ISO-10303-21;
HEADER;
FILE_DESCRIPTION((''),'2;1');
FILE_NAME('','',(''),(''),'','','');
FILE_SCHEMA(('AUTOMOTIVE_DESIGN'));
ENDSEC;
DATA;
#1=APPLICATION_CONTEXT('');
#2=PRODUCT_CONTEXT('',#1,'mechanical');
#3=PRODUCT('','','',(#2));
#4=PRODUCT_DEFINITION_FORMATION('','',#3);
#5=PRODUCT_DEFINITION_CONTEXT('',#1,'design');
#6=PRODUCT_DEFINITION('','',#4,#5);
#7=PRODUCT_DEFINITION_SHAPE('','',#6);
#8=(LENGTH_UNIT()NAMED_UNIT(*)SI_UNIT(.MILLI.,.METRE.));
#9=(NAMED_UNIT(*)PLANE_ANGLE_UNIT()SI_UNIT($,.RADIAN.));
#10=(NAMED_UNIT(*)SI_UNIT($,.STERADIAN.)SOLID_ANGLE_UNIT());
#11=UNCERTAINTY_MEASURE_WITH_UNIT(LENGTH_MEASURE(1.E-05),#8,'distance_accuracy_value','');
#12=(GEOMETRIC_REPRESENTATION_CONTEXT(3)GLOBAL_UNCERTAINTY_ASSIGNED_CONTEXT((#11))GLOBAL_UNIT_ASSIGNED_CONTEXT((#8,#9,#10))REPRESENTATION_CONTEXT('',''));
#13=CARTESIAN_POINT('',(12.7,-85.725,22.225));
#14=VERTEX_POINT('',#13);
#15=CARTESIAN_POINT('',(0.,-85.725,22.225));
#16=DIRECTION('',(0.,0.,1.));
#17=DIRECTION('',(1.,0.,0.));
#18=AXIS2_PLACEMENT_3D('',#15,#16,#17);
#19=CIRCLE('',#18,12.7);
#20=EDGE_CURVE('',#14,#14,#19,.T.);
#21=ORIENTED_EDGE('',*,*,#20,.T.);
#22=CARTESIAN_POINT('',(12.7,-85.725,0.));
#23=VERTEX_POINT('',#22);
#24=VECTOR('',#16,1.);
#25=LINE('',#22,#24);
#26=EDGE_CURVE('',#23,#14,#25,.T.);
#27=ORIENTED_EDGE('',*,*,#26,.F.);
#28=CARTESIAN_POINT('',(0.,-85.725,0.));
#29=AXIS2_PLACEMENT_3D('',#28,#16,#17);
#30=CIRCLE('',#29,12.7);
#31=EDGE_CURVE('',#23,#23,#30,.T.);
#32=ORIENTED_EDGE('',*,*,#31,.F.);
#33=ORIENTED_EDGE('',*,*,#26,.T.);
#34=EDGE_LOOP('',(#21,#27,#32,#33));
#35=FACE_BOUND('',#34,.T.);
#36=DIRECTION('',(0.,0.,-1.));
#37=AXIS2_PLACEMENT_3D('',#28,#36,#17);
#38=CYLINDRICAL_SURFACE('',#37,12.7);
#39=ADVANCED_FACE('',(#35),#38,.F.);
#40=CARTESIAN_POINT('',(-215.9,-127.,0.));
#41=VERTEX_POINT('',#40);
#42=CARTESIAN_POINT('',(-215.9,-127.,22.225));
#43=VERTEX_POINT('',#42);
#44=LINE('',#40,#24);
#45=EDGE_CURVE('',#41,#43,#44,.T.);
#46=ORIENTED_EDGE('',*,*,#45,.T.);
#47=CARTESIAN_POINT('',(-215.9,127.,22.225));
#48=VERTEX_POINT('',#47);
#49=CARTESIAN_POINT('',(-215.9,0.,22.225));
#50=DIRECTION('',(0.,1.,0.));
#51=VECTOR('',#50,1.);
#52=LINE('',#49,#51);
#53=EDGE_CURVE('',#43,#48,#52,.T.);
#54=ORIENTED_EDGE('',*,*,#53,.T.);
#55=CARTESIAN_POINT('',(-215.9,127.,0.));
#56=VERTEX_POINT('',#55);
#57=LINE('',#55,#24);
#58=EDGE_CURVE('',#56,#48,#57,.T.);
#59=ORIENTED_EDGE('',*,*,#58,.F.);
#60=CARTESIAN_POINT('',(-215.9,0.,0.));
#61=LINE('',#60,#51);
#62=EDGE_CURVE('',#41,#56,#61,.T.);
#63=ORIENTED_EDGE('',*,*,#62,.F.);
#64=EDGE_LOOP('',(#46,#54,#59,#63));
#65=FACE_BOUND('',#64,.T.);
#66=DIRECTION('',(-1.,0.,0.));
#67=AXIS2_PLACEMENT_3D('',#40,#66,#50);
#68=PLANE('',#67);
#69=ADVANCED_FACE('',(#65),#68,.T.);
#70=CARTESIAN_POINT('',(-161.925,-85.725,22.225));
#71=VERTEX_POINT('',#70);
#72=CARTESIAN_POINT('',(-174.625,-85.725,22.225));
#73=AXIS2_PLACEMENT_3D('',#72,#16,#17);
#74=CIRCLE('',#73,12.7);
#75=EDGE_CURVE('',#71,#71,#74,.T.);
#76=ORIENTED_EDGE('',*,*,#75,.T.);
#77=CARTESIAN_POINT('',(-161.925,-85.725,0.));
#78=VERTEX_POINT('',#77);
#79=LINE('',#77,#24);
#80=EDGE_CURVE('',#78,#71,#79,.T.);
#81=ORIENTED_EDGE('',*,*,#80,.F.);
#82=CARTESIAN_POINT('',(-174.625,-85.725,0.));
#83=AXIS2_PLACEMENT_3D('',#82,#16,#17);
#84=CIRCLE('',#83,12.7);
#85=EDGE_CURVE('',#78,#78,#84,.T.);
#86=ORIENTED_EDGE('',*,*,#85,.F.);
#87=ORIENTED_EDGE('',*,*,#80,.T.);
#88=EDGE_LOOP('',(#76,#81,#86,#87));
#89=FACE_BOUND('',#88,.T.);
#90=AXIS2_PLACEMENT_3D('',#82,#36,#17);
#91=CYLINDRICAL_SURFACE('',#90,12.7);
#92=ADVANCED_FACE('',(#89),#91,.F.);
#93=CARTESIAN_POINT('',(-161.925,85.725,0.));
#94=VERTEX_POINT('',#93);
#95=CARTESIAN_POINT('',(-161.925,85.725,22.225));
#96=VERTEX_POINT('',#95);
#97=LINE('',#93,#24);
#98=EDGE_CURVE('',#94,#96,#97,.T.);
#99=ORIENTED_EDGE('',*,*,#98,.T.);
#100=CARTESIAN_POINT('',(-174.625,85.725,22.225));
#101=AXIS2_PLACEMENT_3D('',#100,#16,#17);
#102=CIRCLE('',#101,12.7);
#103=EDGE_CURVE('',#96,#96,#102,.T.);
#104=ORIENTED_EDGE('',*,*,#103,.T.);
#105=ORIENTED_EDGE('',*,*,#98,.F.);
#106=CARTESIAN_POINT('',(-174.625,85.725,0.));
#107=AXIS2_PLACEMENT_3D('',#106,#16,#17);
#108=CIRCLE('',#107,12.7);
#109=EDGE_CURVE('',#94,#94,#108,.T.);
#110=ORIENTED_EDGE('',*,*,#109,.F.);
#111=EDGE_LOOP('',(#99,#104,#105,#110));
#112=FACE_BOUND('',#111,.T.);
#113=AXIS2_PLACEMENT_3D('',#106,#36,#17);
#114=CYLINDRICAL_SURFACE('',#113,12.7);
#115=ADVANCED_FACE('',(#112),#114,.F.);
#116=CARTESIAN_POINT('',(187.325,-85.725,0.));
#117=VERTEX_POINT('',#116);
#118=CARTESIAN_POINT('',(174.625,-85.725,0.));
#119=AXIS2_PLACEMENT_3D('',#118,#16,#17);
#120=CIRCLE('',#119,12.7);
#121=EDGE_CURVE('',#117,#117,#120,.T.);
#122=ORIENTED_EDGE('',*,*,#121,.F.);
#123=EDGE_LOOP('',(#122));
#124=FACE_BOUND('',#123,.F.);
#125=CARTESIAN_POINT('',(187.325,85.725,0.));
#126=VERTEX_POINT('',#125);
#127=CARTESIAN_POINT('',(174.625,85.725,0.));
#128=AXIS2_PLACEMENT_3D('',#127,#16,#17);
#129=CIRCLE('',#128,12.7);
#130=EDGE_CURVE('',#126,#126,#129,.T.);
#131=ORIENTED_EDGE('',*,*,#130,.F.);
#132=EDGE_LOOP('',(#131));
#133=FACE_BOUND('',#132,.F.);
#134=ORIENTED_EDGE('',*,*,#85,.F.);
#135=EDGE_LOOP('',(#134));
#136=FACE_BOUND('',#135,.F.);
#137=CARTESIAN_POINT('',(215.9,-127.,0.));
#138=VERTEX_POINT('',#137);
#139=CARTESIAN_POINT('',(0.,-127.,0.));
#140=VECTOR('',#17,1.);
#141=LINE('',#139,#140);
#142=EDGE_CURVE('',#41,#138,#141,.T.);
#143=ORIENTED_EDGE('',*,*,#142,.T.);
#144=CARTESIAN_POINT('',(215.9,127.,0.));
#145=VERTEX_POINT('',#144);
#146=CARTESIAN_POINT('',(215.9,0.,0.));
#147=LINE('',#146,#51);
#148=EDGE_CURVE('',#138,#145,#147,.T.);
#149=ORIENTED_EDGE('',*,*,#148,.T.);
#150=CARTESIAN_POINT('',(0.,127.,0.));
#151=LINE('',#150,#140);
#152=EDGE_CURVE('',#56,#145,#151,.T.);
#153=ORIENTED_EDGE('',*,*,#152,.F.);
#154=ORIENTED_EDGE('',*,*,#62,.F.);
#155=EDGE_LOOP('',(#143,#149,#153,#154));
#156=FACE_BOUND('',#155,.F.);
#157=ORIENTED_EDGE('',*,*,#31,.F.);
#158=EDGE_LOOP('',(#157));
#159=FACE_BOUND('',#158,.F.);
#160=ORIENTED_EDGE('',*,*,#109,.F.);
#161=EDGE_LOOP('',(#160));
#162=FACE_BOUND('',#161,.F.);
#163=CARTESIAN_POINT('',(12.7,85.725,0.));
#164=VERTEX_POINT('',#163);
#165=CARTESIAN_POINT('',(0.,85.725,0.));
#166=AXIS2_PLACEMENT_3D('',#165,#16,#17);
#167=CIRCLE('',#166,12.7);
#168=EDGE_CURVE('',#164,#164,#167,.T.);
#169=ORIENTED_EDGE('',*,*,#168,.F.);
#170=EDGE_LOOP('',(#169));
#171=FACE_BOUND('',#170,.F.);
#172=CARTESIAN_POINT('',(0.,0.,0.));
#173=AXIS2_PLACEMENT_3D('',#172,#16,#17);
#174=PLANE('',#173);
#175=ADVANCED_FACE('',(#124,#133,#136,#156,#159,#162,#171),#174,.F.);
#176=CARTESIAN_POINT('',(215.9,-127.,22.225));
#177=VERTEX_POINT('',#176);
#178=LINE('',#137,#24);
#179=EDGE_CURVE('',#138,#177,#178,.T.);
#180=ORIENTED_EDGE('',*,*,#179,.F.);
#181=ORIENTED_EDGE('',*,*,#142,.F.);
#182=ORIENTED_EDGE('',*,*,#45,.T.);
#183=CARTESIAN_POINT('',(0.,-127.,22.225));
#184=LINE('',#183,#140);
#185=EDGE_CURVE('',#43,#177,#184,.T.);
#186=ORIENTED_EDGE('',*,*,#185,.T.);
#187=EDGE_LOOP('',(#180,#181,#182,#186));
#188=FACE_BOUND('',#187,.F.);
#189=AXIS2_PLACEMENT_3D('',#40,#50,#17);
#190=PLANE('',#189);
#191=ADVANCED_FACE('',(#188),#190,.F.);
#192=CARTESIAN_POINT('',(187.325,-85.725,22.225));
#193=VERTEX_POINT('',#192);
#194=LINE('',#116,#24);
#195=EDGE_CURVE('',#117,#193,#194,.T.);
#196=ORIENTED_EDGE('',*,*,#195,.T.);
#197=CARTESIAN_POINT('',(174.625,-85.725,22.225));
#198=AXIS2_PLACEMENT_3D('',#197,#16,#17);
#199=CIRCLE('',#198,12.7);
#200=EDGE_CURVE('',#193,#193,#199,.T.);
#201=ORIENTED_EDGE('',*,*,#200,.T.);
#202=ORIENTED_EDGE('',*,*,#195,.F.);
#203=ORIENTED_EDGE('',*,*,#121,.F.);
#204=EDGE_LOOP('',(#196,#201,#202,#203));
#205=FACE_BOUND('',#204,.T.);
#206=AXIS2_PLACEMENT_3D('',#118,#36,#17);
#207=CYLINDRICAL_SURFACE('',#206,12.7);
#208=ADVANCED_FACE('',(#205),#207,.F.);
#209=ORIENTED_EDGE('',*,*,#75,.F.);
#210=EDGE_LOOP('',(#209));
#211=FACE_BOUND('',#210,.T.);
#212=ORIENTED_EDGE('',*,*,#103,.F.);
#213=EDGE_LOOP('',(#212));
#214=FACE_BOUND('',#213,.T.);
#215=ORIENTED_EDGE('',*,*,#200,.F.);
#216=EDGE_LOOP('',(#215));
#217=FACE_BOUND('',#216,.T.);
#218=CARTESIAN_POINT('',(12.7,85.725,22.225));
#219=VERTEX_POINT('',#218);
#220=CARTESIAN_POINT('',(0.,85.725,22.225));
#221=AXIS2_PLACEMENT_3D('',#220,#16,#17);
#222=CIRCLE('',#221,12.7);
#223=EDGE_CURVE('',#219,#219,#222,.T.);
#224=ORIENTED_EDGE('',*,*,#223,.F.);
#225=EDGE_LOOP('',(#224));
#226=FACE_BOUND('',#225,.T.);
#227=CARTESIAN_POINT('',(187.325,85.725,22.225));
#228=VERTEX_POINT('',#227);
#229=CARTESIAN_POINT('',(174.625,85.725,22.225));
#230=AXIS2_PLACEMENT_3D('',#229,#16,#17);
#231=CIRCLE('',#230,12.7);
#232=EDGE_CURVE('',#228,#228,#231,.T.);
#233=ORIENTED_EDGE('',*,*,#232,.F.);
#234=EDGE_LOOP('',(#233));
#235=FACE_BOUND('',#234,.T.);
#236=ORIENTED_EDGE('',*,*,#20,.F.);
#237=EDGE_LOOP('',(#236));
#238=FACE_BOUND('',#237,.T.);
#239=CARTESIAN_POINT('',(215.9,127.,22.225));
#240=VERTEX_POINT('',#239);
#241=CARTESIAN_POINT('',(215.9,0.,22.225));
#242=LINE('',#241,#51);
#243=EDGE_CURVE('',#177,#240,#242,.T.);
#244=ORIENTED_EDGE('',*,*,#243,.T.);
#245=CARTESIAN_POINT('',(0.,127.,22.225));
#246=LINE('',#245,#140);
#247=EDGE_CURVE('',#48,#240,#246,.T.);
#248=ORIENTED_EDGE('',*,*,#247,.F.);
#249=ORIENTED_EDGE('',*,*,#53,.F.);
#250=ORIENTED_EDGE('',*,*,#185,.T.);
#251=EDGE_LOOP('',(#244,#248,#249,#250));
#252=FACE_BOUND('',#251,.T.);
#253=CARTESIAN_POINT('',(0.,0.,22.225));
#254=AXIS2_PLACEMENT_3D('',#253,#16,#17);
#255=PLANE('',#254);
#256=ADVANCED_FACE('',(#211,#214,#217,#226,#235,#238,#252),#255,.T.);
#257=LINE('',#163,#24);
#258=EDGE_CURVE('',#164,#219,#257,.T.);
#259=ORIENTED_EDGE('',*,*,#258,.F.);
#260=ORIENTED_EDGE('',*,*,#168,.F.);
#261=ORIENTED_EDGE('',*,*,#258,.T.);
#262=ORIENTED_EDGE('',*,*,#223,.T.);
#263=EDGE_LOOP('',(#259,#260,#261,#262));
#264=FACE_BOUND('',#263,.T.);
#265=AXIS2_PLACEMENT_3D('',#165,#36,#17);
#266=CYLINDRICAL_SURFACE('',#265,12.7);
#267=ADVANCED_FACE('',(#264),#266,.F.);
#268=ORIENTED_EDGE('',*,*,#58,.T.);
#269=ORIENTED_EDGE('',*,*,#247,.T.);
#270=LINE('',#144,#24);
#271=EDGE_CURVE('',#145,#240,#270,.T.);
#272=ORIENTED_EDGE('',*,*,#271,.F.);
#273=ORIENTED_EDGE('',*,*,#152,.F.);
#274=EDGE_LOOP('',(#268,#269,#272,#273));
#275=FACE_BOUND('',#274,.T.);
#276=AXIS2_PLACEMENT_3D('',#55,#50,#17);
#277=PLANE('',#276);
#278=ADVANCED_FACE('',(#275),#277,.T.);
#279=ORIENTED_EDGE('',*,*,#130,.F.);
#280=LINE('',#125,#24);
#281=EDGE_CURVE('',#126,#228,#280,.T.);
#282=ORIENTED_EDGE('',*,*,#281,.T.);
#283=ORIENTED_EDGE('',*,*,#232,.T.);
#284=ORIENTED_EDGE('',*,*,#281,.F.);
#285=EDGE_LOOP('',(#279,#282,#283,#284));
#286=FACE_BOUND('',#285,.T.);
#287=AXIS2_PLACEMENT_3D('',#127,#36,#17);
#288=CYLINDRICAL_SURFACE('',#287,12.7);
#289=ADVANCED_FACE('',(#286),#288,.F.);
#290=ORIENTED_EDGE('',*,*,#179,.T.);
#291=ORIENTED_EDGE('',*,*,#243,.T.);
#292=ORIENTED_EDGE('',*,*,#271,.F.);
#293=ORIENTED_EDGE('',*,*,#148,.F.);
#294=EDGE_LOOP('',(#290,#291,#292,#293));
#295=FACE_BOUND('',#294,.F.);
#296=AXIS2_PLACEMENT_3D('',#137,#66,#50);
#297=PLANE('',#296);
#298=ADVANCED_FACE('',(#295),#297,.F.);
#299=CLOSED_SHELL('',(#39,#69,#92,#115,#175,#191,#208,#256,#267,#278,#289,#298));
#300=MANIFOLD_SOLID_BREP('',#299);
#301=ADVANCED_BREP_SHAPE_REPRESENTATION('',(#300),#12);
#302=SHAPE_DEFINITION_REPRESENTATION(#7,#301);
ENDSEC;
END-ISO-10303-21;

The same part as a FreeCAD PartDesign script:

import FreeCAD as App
import Part
import Sketcher

V = App.Vector
Q = App.Units.Quantity


def add_polygon(sketch, points):
    """Adds a closed chain of lines whose ends are joined by coincident constraints."""
    first, n = sketch.GeometryCount, len(points)
    for a, b in zip(points, points[1:] + points[:1]):
        sketch.addGeometry(Part.LineSegment(App.Vector(*a, 0), App.Vector(*b, 0)), False)
    for i in range(n):
        sketch.addConstraint(Sketcher.Constraint("Coincident", first + i, 2, first + (i + 1) % n, 1))

doc = App.newDocument("Part")
params = doc.addObject("Spreadsheet::Sheet", "Params")
for row, (alias, value) in enumerate([
    ("sketch1_diameter", "1 in"),
    ("sketch1_width", "17 in"),
    ("sketch1_height", "10 in"),
    ("pad1_length", "0.875 in"),
], start=1):
    params.set(f"A{row}", alias)
    params.set(f"B{row}", "=" + value)
    params.setAlias(f"B{row}", alias)

body = doc.addObject("PartDesign::Body", "Body")

# Sketch on XY plane
sketch1 = body.newObject("Sketcher::SketchObject", "Sketch")
sketch1.AttachmentSupport = (doc.getObject("XY_Plane"), [""])
sketch1.MapMode = "FlatFace"
add_polygon(sketch1, [(-216, 127), (-216, -127), (216, -127), (216, 127)])  # lines 0-3
sketch1.addGeometry(Part.Circle(V(-175, -86, 0), V(0, 0, 1), 13), False)  # 4
sketch1.addGeometry(Part.Circle(V(0, -86, 0), V(0, 0, 1), 13), False)  # 5
sketch1.addGeometry(Part.Circle(V(175, -86, 0), V(0, 0, 1), 13), False)  # 6
sketch1.addGeometry(Part.Circle(V(-175, 86, 0), V(0, 0, 1), 13), False)  # 7
sketch1.addGeometry(Part.Circle(V(0, 86, 0), V(0, 0, 1), 13), False)  # 8
sketch1.addGeometry(Part.Circle(V(175, 86, 0), V(0, 0, 1), 13), False)  # 9
sketch1.addConstraint(Sketcher.Constraint("Vertical", 0))
sketch1.addConstraint(Sketcher.Constraint("Horizontal", 1))
sketch1.addConstraint(Sketcher.Constraint("Vertical", 2))
sketch1.addConstraint(Sketcher.Constraint("Horizontal", 3))
sketch1.addConstraint(Sketcher.Constraint("Equal", 4, 5))
sketch1.addConstraint(Sketcher.Constraint("Equal", 5, 6))
sketch1.addConstraint(Sketcher.Constraint("Equal", 6, 7))
sketch1.addConstraint(Sketcher.Constraint("Equal", 7, 8))
sketch1.addConstraint(Sketcher.Constraint("Equal", 8, 9))
sketch1.addConstraint(Sketcher.Constraint("Symmetric", 6, 3, 7, 3, -1, 1))
sketch1.addConstraint(Sketcher.Constraint("Symmetric", 5, 3, 8, 3, -1, 1))
sketch1.addConstraint(Sketcher.Constraint("Symmetric", 4, 3, 9, 3, -1, 1))
sketch1.addConstraint(Sketcher.Constraint("Symmetric", 0, 2, 2, 2, -1, 1))
sketch1.addConstraint(Sketcher.Constraint("Symmetric", 4, 3, 6, 3, -2))
sketch1.addConstraint(Sketcher.Constraint("PointOnObject", 5, 3, -2))
sketch1.addConstraint(Sketcher.Constraint("Horizontal", 4, 3, 5, 3))
sketch1.addConstraint(Sketcher.Constraint("Diameter", 4, Q("1 in")))
sketch1.addConstraint(Sketcher.Constraint("DistanceX", 1, 1, 1, 2, Q("17 in")))
sketch1.addConstraint(Sketcher.Constraint("DistanceY", 0, 2, 0, 1, Q("10 in")))
sketch1.addConstraint(Sketcher.Constraint("DistanceX", 4, 3, 6, 3, Q("13.75 in")))
sketch1.addConstraint(Sketcher.Constraint("DistanceY", 4, 3, 7, 3, Q("6.75 in")))
sketch1.setExpression("Constraints[20]", "Params.sketch1_diameter")
sketch1.setExpression("Constraints[21]", "Params.sketch1_width")
sketch1.setExpression("Constraints[22]", "Params.sketch1_height")
pad1 = body.newObject("PartDesign::Pad", "Pad")
pad1.Profile = sketch1
pad1.setExpression("Length", "Params.pad1_length")

doc.recompute()
